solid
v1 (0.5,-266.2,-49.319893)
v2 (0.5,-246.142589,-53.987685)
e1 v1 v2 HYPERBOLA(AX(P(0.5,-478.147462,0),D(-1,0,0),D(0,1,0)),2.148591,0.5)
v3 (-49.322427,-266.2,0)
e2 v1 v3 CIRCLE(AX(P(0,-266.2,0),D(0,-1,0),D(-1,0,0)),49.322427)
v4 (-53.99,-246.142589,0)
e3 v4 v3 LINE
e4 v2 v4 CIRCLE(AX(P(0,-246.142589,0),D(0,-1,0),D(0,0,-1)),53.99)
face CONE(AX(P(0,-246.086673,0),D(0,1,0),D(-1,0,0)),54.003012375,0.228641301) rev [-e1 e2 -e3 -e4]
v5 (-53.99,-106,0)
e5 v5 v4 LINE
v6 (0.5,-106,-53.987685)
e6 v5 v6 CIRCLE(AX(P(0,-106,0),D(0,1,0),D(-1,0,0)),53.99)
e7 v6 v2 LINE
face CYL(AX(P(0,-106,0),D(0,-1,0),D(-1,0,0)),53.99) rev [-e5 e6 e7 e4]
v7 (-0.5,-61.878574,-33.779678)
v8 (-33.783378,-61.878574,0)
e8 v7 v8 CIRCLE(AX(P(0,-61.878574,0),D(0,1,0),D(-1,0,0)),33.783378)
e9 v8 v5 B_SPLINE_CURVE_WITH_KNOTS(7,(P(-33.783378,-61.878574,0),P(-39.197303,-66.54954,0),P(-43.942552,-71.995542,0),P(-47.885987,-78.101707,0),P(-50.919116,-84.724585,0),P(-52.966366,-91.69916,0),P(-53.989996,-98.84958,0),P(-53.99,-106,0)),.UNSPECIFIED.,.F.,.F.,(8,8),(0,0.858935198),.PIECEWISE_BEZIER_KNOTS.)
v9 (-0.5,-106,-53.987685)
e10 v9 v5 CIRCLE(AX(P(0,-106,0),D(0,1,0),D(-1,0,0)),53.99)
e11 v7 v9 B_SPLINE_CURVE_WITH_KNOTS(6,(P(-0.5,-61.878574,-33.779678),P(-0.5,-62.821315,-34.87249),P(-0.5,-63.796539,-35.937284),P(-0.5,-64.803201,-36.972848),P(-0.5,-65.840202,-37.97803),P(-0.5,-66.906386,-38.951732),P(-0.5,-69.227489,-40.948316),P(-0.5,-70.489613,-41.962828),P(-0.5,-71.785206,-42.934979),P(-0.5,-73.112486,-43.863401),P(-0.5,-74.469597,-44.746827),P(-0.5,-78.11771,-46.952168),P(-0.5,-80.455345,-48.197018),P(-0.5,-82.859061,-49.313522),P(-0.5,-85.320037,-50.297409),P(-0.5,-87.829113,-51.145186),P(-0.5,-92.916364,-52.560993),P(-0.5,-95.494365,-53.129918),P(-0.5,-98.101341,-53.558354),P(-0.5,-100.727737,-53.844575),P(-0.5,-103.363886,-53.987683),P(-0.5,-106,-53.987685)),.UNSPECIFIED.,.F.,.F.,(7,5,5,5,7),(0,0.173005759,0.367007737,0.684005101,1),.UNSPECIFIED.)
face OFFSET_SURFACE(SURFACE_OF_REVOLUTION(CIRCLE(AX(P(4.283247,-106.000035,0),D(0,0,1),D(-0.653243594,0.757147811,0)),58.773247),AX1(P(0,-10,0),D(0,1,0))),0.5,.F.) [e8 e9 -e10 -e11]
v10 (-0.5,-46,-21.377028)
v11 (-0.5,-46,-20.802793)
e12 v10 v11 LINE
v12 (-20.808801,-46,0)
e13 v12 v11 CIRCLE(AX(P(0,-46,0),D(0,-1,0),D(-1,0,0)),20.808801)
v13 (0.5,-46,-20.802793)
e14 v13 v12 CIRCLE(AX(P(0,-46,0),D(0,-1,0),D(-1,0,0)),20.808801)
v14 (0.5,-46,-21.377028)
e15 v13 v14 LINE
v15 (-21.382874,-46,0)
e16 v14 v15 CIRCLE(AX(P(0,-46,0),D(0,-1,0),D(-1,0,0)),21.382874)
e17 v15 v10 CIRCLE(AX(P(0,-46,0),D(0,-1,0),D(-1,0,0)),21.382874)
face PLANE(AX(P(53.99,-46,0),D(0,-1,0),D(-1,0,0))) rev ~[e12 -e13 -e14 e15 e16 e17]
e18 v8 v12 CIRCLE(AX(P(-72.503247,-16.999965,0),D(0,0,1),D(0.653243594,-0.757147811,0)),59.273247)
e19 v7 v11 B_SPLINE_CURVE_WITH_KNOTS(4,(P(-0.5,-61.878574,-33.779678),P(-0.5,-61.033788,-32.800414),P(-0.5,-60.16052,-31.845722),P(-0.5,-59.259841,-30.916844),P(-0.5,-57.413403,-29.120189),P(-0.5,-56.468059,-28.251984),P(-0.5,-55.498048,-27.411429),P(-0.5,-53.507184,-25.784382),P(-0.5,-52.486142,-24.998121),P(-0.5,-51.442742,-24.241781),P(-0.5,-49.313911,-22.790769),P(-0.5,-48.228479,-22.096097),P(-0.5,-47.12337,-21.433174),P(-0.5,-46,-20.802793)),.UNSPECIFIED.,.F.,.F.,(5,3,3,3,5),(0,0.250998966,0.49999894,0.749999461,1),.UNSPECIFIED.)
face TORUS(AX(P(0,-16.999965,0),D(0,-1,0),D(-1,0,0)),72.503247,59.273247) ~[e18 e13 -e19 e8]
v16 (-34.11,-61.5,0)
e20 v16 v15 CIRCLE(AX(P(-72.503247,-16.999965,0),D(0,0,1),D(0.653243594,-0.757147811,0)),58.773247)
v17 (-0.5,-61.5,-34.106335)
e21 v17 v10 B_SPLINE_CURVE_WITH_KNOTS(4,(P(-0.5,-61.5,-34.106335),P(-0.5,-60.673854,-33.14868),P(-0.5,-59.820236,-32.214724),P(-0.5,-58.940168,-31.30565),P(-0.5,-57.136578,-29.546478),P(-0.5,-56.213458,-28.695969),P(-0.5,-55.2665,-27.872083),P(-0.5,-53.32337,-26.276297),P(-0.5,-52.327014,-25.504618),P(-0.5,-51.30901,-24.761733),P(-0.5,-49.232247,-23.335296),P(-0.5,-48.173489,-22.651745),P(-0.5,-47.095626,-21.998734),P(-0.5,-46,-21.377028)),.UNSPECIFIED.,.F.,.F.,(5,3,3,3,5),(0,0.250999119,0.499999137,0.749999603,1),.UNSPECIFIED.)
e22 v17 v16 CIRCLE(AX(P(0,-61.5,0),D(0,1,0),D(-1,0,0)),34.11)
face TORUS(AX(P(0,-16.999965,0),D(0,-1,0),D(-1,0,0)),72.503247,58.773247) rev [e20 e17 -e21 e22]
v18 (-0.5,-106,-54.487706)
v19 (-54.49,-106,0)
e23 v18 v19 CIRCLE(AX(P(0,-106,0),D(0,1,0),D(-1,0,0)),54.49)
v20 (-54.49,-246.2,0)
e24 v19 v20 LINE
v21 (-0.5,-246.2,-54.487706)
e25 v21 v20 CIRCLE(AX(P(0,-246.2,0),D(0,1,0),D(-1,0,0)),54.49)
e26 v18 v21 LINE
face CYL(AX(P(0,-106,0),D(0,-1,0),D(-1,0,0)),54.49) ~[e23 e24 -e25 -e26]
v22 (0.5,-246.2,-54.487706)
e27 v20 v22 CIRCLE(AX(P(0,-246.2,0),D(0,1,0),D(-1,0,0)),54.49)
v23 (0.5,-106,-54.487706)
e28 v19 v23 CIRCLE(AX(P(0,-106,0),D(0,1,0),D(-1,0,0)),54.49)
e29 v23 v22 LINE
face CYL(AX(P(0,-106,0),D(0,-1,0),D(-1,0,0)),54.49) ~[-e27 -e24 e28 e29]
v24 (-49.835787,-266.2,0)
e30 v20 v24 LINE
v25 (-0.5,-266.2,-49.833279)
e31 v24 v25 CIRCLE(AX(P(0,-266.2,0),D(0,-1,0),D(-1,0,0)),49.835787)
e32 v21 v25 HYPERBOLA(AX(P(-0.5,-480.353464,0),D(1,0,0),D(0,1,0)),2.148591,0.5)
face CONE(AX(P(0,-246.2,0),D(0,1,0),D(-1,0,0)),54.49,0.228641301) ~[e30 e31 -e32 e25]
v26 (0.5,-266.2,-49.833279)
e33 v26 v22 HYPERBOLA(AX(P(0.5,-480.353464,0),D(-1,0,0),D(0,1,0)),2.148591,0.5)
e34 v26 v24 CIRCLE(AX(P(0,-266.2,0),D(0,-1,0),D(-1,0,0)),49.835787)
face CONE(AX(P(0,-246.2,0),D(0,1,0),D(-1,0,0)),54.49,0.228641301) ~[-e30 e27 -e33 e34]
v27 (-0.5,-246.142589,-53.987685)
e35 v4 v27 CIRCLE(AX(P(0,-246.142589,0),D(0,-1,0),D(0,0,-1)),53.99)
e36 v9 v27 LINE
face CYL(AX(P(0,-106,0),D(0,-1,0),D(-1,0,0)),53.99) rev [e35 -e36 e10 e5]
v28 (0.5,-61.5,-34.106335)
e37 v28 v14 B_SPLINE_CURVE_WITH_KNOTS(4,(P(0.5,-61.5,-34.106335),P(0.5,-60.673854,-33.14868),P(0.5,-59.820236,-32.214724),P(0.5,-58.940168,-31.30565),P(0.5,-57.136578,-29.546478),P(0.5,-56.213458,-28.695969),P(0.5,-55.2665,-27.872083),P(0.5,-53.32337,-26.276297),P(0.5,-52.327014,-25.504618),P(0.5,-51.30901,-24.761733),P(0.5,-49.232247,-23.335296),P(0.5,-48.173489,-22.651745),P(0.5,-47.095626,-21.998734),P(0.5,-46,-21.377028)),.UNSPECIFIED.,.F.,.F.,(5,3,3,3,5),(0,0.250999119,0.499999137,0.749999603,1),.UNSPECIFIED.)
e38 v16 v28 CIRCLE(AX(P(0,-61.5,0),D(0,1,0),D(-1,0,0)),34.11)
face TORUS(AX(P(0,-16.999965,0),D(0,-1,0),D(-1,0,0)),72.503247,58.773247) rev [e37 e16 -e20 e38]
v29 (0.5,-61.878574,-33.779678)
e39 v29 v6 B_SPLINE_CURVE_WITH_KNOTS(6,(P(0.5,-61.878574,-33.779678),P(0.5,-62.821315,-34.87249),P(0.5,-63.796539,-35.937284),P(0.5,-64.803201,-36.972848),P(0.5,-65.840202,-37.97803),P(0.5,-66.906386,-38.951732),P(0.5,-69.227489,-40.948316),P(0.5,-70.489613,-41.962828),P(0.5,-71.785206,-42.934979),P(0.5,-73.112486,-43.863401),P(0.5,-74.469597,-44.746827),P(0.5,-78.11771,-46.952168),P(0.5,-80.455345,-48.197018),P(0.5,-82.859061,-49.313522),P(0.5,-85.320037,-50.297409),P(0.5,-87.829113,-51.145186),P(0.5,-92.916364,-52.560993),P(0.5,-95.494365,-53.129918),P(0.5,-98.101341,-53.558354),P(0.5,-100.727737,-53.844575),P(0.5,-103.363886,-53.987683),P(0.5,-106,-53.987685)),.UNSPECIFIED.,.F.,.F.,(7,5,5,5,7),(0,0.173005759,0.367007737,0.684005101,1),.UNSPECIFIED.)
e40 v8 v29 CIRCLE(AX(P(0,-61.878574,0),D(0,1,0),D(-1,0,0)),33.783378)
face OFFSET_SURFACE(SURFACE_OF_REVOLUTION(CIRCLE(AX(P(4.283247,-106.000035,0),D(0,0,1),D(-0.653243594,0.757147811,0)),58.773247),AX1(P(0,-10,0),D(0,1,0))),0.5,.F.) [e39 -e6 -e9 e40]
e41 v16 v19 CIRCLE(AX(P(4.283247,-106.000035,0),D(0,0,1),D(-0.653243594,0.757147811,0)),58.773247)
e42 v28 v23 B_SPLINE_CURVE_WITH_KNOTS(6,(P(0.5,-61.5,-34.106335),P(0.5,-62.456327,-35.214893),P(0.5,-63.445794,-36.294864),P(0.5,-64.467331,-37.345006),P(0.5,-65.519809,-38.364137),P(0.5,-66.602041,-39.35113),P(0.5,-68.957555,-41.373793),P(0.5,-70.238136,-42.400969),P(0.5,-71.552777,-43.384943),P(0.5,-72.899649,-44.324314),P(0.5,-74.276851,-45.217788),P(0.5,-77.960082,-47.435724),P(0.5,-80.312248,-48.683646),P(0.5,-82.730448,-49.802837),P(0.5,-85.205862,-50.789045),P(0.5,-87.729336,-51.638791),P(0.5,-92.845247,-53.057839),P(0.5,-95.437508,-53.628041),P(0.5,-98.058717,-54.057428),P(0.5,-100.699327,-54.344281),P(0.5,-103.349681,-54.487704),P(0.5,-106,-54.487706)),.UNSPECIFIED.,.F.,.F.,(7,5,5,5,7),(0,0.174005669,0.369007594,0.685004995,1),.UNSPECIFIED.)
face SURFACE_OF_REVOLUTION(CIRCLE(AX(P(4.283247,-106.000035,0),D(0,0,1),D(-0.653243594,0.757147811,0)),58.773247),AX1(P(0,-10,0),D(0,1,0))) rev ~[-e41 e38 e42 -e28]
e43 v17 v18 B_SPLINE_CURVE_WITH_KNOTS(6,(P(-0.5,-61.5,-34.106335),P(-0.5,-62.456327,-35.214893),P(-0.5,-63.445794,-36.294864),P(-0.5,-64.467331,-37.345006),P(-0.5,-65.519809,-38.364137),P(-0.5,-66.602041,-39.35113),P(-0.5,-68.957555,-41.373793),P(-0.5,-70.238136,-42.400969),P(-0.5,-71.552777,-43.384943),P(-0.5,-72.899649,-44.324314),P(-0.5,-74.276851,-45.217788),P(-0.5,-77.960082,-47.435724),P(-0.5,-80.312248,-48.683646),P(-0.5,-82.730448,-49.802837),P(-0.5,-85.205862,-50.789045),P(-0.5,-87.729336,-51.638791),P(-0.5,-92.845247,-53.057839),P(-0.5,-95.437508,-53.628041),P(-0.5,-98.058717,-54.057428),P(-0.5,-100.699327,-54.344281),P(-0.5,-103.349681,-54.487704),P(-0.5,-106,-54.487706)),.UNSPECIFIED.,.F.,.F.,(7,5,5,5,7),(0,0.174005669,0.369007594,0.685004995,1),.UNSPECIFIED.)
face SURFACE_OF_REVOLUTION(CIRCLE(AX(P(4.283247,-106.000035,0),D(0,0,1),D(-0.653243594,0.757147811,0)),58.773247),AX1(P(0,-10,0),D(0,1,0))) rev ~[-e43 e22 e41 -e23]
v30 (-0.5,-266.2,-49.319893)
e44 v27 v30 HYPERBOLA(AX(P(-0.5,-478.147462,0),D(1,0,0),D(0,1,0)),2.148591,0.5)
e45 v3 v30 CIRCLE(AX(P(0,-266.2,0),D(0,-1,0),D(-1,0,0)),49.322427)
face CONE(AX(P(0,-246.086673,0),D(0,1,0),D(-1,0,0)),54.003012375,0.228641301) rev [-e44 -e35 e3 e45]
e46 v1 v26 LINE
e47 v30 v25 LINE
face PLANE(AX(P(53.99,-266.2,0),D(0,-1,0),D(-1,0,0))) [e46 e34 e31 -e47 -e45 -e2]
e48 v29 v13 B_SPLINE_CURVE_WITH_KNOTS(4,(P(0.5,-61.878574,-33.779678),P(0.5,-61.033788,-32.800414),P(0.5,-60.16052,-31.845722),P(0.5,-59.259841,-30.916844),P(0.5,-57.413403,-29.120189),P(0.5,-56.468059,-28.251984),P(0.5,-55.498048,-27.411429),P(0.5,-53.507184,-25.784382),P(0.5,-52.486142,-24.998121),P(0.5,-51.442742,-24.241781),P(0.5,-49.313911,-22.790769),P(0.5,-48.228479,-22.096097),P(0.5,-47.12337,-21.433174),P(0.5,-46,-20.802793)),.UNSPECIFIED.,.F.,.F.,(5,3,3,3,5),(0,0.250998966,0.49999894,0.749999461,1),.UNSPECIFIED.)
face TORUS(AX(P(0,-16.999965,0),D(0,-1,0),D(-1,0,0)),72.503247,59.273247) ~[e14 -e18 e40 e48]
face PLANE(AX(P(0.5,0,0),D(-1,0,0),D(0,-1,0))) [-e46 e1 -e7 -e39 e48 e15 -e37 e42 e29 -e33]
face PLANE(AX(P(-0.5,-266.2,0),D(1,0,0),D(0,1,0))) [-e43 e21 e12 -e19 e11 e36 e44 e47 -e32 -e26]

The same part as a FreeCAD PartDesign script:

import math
import FreeCAD as App
import Part
import Sketcher
from FreeCAD import Vector
Q = App.Units.Quantity


def faces_at(feature, points):
    """Names of the faces that lie closest to the given points."""
    faces = feature.Shape.Faces
    near = lambda p: min(range(len(faces)), key=lambda i: faces[i].distToShape(Part.Vertex(*p))[0])
    return sorted({f"Face{near(p) + 1}" for p in points})


def add_polygon(sketch, points):
    """Adds a closed chain of lines whose ends are joined by coincident constraints."""
    first, n = sketch.GeometryCount, len(points)
    for a, b in zip(points, points[1:] + points[:1]):
        sketch.addGeometry(Part.LineSegment(App.Vector(*a, 0), App.Vector(*b, 0)), False)
    for i in range(n):
        sketch.addConstraint(Sketcher.Constraint("Coincident", first + i, 2, first + (i + 1) % n, 1))

doc = App.newDocument("Part")
body = doc.addObject("PartDesign::Body", "Body")

# Sketch on XY plane
sketch1 = body.newObject("Sketcher::SketchObject", "Sketch")
sketch1.AttachmentSupport = (doc.getObject("XY_Plane"), [""])
sketch1.MapMode = "FlatFace"
sketch1.addGeometry(Part.LineSegment(Vector(0, -297, 0), Vector(0, 0, 0)), False)
sketch1.addGeometry(Part.LineSegment(Vector(0, 0, 0), Vector(-13.73, 0, 0)), False)
sketch1.addGeometry(Part.LineSegment(Vector(-13.73, 0, 0), Vector(-13.73, -17, 0)), False)
sketch1.addGeometry(Part.ArcOfCircle(Part.Circle(Vector(-72.5032, -17, 0), Vector(0, 0, 1), 58.77319), math.radians(-49.213409), math.radians(0)), False)
sketch1.addGeometry(Part.ArcOfCircle(Part.Circle(Vector(4.2832, -106, 0), Vector(0, 0, 1), 58.77319), math.radians(130.786591), math.radians(180)), False)
sketch1.addGeometry(Part.LineSegment(Vector(-54.49, -106, 0), Vector(-54.49, -246.2, 0)), False)
sketch1.addGeometry(Part.LineSegment(Vector(-54.49, -246.2, 0), Vector(-42.6683, -297, 0)), False)
sketch1.addGeometry(Part.LineSegment(Vector(-42.6683, -297, 0), Vector(0, -297, 0)), False)
sketch1.addConstraint(Sketcher.Constraint("Coincident", 0, 2, 1, 1))
sketch1.addConstraint(Sketcher.Constraint("Coincident", 1, 2, 2, 1))
sketch1.addConstraint(Sketcher.Constraint("Tangent", 2, 2, 3, 2))
sketch1.addConstraint(Sketcher.Constraint("Tangent", 3, 1, 4, 1))
sketch1.addConstraint(Sketcher.Constraint("Tangent", 4, 2, 5, 1))
sketch1.addConstraint(Sketcher.Constraint("Coincident", 5, 2, 6, 1))
sketch1.addConstraint(Sketcher.Constraint("Coincident", 6, 2, 7, 1))
sketch1.addConstraint(Sketcher.Constraint("Coincident", 7, 2, 0, 1))
sketch1.addConstraint(Sketcher.Constraint("Vertical", 0))
sketch1.addConstraint(Sketcher.Constraint("Horizontal", 1))
sketch1.addConstraint(Sketcher.Constraint("Vertical", 2))
sketch1.addConstraint(Sketcher.Constraint("Vertical", 5))
sketch1.addConstraint(Sketcher.Constraint("Horizontal", 7))
sketch1.addConstraint(Sketcher.Constraint("Coincident", 0, 2, -1, 1))
sketch1.addConstraint(Sketcher.Constraint("Equal", 3, 4))
sketch1.addConstraint(Sketcher.Constraint("DistanceY", 0, 1, 0, 2, 297.0))
sketch1.addConstraint(Sketcher.Constraint("DistanceY", 2, 2, 2, 1, 17.0))
sketch1.addConstraint(Sketcher.Constraint("DistanceY", 4, 3, -1, 1, 106.0))
sketch1.addConstraint(Sketcher.Constraint("DistanceX", 1, 2, 1, 1, 13.73))
sketch1.addConstraint(Sketcher.Constraint("DistanceY", 6, 2, 5, 2, 50.8))
sketch1.addConstraint(Sketcher.Constraint("DistanceX", 4, 2, -1, 1, 54.49))
sketch1.addConstraint(Sketcher.Constraint("Angle", 6, Q("-76.8998 deg")))
revolution = body.newObject("PartDesign::Revolution", "Revolution")
revolution.Profile = sketch1
revolution.ReferenceAxis = (sketch1, ["V_Axis"])
revolution.Angle = 360
doc.recompute()

thickness = body.newObject("PartDesign::Thickness", "Thickness")
thickness.Base = (revolution, faces_at(revolution, [(0.552, 0, -4.015)]))
thickness.Value = 0.5
thickness.Reversed = True
thickness.Join = "Intersection"

# Sketch on XY plane
sketch2 = body.newObject("Sketcher::SketchObject", "Sketch001")
sketch2.AttachmentSupport = (doc.getObject("XY_Plane"), [""])
sketch2.MapMode = "FlatFace"
add_polygon(sketch2, [(53.99, 0), (-53.99, 0), (-53.99, -46), (53.99, -46)])  # lines 0-3
add_polygon(sketch2, [(53.99, -297), (53.99, -266.2), (-53.99, -266.2), (-53.99, -297)])  # lines 4-7
sketch2.addConstraint(Sketcher.Constraint("Horizontal", 0))
sketch2.addConstraint(Sketcher.Constraint("Vertical", 1))
sketch2.addConstraint(Sketcher.Constraint("Horizontal", 2))
sketch2.addConstraint(Sketcher.Constraint("Vertical", 3))
sketch2.addConstraint(Sketcher.Constraint("Vertical", 4))
sketch2.addConstraint(Sketcher.Constraint("Horizontal", 5))
sketch2.addConstraint(Sketcher.Constraint("Vertical", 6))
sketch2.addConstraint(Sketcher.Constraint("Horizontal", 7))
sketch2.addConstraint(Sketcher.Constraint("Symmetric", 0, 2, 3, 2, -1, 1))
sketch2.addConstraint(Sketcher.Constraint("Vertical", 3, 2, 4, 2))
sketch2.addConstraint(Sketcher.Constraint("Vertical", 1, 2, 5, 2))
sketch2.addConstraint(Sketcher.Constraint("DistanceY", 1, 2, 1, 1, 46.0))
sketch2.addConstraint(Sketcher.Constraint("DistanceY", 4, 1, 4, 2, 30.8))
sketch2.addConstraint(Sketcher.Constraint("DistanceY", 6, 2, -1, 1, 297.0))
sketch2.addConstraint(Sketcher.Constraint("DistanceX", 0, 2, 0, 1, 107.98))
pocket1 = body.newObject("PartDesign::Pocket", "Pocket")
pocket1.Profile = sketch2
pocket1.Type = "ThroughAll"
pocket1.Midplane = True

# Sketch on XY plane
sketch3 = body.newObject("Sketcher::SketchObject", "Sketch002")
sketch3.AttachmentSupport = (doc.getObject("XY_Plane"), [""])
sketch3.MapMode = "FlatFace"
add_polygon(sketch3, [(0.5, 0), (-0.5, 0), (-0.5, -266.2), (0.5, -266.2)])  # lines 0-3
sketch3.addConstraint(Sketcher.Constraint("Horizontal", 0))
sketch3.addConstraint(Sketcher.Constraint("Vertical", 1))
sketch3.addConstraint(Sketcher.Constraint("Horizontal", 2))
sketch3.addConstraint(Sketcher.Constraint("Vertical", 3))
sketch3.addConstraint(Sketcher.Constraint("Symmetric", 0, 2, 3, 2, -1, 1))
sketch3.addConstraint(Sketcher.Constraint("DistanceX", 0, 2, 0, 1, 1.0))
sketch3.addConstraint(Sketcher.Constraint("DistanceY", 1, 2, 1, 1, 266.2))
pocket2 = body.newObject("PartDesign::Pocket", "Pocket001")
pocket2.Profile = sketch3
pocket2.Type = "ThroughAll"

doc.recompute()
